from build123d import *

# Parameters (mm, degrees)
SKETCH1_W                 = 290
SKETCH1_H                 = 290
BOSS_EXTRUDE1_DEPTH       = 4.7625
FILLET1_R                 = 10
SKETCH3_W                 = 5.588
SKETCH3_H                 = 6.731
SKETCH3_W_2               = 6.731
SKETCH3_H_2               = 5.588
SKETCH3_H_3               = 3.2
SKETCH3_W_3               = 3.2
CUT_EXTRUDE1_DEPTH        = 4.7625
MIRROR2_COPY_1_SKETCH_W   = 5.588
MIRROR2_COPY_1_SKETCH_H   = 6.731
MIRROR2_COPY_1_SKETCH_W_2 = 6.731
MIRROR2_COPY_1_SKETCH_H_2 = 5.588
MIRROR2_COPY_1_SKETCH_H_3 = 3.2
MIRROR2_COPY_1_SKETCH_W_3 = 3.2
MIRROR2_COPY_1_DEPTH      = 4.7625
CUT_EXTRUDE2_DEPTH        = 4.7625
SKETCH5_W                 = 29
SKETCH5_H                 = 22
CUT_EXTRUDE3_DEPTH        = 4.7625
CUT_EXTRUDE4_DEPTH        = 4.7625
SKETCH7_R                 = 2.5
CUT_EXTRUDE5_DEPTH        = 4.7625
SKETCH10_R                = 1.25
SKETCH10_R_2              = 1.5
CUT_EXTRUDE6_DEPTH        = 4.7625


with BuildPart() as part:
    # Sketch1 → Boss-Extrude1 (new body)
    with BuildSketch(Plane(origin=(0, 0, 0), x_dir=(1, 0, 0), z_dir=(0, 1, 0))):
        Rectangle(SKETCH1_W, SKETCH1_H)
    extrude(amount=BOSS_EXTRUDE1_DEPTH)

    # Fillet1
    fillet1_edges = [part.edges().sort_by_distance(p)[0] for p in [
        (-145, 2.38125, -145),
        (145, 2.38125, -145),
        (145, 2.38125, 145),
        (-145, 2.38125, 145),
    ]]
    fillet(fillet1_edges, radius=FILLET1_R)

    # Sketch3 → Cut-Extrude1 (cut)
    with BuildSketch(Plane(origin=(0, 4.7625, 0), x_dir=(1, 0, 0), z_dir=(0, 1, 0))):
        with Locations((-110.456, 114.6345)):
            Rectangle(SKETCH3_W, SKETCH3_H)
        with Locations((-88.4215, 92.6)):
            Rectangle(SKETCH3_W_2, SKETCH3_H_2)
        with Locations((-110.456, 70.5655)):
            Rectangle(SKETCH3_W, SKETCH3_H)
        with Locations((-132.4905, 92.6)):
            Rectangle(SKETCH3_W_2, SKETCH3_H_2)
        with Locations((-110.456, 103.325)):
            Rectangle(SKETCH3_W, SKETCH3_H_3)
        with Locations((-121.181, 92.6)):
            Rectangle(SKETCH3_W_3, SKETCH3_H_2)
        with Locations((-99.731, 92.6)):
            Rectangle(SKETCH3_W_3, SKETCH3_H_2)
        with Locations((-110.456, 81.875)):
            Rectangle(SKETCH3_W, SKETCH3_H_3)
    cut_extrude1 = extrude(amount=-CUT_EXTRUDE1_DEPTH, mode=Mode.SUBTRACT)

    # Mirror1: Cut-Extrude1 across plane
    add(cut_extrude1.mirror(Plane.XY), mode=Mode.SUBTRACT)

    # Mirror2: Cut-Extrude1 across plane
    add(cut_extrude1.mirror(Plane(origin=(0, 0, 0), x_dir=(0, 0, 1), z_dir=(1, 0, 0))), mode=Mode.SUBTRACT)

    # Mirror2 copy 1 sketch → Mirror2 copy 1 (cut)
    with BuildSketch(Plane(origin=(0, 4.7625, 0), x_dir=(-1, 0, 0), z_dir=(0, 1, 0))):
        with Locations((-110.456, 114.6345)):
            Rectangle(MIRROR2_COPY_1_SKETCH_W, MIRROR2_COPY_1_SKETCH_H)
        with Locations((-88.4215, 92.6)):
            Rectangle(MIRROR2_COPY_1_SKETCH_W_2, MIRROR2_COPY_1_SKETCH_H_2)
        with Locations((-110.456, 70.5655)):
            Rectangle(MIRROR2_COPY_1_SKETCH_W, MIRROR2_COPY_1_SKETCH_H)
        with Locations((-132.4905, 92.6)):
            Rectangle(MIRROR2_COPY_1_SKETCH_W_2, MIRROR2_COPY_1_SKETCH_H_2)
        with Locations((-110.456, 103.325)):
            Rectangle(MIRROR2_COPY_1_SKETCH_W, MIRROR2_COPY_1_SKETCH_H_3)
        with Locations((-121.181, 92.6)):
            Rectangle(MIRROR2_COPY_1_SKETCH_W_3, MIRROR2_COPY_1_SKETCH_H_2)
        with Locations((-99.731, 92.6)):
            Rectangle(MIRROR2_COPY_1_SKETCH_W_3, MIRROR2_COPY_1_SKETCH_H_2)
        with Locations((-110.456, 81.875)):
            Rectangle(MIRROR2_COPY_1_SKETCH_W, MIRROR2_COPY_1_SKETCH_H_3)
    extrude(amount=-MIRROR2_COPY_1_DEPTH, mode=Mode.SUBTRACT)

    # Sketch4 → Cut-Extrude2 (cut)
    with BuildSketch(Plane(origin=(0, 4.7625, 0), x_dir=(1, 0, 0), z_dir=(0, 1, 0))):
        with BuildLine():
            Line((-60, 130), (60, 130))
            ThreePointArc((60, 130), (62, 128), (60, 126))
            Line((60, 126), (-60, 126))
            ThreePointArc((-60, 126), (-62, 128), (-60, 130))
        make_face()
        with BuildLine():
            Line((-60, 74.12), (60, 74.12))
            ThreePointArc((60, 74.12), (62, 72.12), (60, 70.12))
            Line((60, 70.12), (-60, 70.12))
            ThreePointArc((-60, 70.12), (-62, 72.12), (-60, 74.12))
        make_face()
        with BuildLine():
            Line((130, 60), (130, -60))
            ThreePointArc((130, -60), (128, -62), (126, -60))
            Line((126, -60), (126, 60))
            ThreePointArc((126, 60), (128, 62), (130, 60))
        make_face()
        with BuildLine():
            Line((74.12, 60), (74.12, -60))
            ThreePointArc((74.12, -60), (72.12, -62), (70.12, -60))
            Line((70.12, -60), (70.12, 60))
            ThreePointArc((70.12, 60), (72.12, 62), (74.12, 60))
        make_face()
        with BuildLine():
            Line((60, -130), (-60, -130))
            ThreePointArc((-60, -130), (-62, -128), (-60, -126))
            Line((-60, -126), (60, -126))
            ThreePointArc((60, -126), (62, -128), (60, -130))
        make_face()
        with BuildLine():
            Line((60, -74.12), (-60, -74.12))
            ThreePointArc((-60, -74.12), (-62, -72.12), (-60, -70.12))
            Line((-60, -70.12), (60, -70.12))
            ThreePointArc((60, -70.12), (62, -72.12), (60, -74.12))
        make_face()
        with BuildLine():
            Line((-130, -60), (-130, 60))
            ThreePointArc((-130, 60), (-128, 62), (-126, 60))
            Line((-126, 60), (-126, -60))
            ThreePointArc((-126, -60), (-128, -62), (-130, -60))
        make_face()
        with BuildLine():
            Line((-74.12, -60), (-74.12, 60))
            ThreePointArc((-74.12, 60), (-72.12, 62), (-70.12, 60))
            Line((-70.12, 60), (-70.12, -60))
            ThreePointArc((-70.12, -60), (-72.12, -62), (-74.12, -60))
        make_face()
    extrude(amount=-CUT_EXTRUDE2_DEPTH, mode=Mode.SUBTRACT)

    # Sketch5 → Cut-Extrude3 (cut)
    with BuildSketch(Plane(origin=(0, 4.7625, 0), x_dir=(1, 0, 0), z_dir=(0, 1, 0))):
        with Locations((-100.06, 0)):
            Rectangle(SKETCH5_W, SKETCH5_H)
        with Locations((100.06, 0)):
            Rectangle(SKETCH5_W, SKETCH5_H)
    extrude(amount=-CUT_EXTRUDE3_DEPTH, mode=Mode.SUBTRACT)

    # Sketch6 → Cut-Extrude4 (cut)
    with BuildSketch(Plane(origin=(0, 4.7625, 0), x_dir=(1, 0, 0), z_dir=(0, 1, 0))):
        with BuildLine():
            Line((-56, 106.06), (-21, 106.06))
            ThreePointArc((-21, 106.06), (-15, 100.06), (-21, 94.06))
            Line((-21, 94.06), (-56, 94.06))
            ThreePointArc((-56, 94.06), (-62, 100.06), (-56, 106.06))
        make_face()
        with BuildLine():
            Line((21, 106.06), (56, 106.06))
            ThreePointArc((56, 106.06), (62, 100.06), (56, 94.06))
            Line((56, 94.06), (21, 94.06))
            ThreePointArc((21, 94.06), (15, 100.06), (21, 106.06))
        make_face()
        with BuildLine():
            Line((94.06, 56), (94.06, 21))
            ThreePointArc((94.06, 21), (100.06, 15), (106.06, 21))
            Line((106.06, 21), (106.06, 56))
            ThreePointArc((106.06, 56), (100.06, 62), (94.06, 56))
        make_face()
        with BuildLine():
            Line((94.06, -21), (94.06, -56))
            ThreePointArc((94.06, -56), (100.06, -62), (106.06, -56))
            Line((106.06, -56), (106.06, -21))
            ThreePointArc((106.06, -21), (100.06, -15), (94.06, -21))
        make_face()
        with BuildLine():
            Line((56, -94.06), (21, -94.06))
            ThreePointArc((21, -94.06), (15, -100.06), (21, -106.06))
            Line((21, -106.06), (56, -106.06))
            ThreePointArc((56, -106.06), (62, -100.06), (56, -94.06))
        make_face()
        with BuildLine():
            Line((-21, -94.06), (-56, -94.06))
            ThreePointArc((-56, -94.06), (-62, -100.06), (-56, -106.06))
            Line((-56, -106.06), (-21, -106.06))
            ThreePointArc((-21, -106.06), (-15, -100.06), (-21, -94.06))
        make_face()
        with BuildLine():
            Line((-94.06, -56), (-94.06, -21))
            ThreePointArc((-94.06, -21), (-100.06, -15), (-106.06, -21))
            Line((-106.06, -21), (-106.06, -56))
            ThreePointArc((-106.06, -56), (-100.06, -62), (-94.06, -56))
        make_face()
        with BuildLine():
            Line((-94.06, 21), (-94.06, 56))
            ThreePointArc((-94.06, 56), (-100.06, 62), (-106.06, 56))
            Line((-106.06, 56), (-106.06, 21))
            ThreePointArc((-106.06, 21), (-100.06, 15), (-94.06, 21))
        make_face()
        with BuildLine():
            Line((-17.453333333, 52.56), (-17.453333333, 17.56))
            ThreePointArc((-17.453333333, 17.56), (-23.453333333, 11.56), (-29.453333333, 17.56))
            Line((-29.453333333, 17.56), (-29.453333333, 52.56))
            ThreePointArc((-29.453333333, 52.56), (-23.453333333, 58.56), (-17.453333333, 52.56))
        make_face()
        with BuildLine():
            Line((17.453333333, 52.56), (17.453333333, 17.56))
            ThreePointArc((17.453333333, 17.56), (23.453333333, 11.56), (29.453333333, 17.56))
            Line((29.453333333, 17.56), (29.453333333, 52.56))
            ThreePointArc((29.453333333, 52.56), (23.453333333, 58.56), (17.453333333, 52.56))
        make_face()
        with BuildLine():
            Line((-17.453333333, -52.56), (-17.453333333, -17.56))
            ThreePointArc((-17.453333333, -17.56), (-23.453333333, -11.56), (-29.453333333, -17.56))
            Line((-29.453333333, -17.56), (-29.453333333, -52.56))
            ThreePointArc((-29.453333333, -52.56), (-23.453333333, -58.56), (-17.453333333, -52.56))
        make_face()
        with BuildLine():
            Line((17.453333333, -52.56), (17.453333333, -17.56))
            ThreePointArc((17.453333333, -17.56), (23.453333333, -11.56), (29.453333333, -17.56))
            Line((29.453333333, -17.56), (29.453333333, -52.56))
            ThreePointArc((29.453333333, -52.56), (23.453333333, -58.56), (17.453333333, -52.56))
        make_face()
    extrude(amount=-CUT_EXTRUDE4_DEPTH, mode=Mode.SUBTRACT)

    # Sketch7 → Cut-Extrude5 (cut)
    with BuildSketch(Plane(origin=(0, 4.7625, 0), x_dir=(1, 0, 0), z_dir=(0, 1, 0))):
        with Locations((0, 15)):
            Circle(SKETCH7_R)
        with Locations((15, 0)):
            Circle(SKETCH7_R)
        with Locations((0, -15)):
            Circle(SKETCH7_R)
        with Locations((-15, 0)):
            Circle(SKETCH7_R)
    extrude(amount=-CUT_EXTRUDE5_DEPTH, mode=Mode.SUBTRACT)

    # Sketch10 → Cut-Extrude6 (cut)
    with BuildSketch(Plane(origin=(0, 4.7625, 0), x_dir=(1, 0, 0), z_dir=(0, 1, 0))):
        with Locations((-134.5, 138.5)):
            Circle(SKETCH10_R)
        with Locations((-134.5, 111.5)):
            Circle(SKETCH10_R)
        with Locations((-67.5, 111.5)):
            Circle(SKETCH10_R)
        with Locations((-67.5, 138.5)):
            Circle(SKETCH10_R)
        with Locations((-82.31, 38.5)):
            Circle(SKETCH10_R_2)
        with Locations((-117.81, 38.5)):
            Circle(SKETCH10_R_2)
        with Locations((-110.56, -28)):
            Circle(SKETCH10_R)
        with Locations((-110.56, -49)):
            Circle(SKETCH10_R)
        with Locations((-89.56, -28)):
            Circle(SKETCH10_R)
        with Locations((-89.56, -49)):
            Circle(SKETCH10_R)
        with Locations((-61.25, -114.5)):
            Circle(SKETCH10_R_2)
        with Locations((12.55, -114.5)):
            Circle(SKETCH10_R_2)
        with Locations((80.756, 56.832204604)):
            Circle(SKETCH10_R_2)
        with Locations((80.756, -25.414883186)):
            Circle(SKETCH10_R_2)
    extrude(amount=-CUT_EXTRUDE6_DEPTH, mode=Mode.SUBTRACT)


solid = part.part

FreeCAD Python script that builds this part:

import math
import FreeCAD as App
import Part
import Sketcher

V = App.Vector


def edges_at(feature, points):
    """Names of the edges that pass closest to the given points."""
    edges = feature.Shape.Edges
    near = lambda p: min(range(len(edges)), key=lambda i: edges[i].distToShape(Part.Vertex(*p))[0])
    return sorted({f"Edge{near(p) + 1}" for p in points})

doc = App.newDocument("Part")
body = doc.addObject("PartDesign::Body", "Body")

sketch1 = body.newObject("Sketcher::SketchObject", "Sketch")
sketch1.AttachmentSupport = (doc.getObject("XZ_Plane"), [""])
sketch1.MapMode = "FlatFace"
sketch1.addGeometry([
    Part.LineSegment(V(-145, -145, 0), V(-145, 145, 0)),
    Part.LineSegment(V(-145, 145, 0), V(145, 145, 0)),
    Part.LineSegment(V(145, 145, 0), V(145, -145, 0)),
    Part.LineSegment(V(145, -145, 0), V(-145, -145, 0)),
], False)
sketch1.addConstraint([
    Sketcher.Constraint("Coincident", 0, 2, 1, 1),
    Sketcher.Constraint("Coincident", 1, 2, 2, 1),
    Sketcher.Constraint("Coincident", 2, 2, 3, 1),
    Sketcher.Constraint("Coincident", 3, 2, 0, 1),
    Sketcher.Constraint("Vertical", 0),
    Sketcher.Constraint("Horizontal", 1),
    Sketcher.Constraint("Vertical", 2),
    Sketcher.Constraint("Horizontal", 3),
    Sketcher.Constraint("Symmetric", 0, 2, 2, 2, -1, 1),
    Sketcher.Constraint("Equal", 3, 0),
    Sketcher.Constraint("DistanceX", 1, 1, 1, 2, 290.0),
])
pad1 = body.newObject("PartDesign::Pad", "Pad")
pad1.Profile = sketch1
pad1.Length = 4.7625
pad1.Reversed = True
doc.recompute()

fillet = body.newObject("PartDesign::Fillet", "Fillet")
fillet.Base = (pad1, edges_at(pad1, [
    (-145, 2.381, -145),
    (145, 2.381, -145),
    (145, 2.381, 145),
    (-145, 2.381, 145),
]))
fillet.Radius = 10

sketch2 = body.newObject("Sketcher::SketchObject", "Sketch001")
sketch2.AttachmentSupport = (doc.getObject("XZ_Plane"), [""])
sketch2.MapMode = "FlatFace"
sketch2.AttachmentOffset = App.Placement(V(0, 0, -4.7625), App.Rotation())
sketch2.addGeometry([
    Part.LineSegment(V(-113.2, -118, 0), V(-113.2, -111.3, 0)),
    Part.LineSegment(V(-113.2, -111.3, 0), V(-107.7, -111.3, 0)),
    Part.LineSegment(V(-107.7, -111.3, 0), V(-107.7, -118, 0)),
    Part.LineSegment(V(-107.7, -118, 0), V(-113.2, -118, 0)),
    Part.LineSegment(V(-91.8, -95.4, 0), V(-91.8, -89.8, 0)),
    Part.LineSegment(V(-91.8, -89.8, 0), V(-85.1, -89.8, 0)),
    Part.LineSegment(V(-85.1, -89.8, 0), V(-85.1, -95.4, 0)),
    Part.LineSegment(V(-85.1, -95.4, 0), V(-91.8, -95.4, 0)),
    Part.LineSegment(V(-113.2, -73.9, 0), V(-113.2, -67.2, 0)),
    Part.LineSegment(V(-113.2, -67.2, 0), V(-107.7, -67.2, 0)),
    Part.LineSegment(V(-107.7, -67.2, 0), V(-107.7, -73.9, 0)),
    Part.LineSegment(V(-107.7, -73.9, 0), V(-113.2, -73.9, 0)),
    Part.LineSegment(V(-135.9, -95.4, 0), V(-135.9, -89.8, 0)),
    Part.LineSegment(V(-135.9, -89.8, 0), V(-129.1, -89.8, 0)),
    Part.LineSegment(V(-129.1, -89.8, 0), V(-129.1, -95.4, 0)),
    Part.LineSegment(V(-129.1, -95.4, 0), V(-135.9, -95.4, 0)),
    Part.LineSegment(V(-113.2, -104.9, 0), V(-113.2, -101.7, 0)),
    Part.LineSegment(V(-113.2, -101.7, 0), V(-107.7, -101.7, 0)),
    Part.LineSegment(V(-107.7, -101.7, 0), V(-107.7, -104.9, 0)),
    Part.LineSegment(V(-107.7, -104.9, 0), V(-113.2, -104.9, 0)),
    Part.LineSegment(V(-122.8, -95.4, 0), V(-122.8, -89.8, 0)),
    Part.LineSegment(V(-122.8, -89.8, 0), V(-119.6, -89.8, 0)),
    Part.LineSegment(V(-119.6, -89.8, 0), V(-119.6, -95.4, 0)),
    Part.LineSegment(V(-119.6, -95.4, 0), V(-122.8, -95.4, 0)),
    Part.LineSegment(V(-101.3, -95.4, 0), V(-101.3, -89.8, 0)),
    Part.LineSegment(V(-101.3, -89.8, 0), V(-98.1, -89.8, 0)),
    Part.LineSegment(V(-98.1, -89.8, 0), V(-98.1, -95.4, 0)),
    Part.LineSegment(V(-98.1, -95.4, 0), V(-101.3, -95.4, 0)),
    Part.LineSegment(V(-113.2, -83.5, 0), V(-113.2, -80.3, 0)),
    Part.LineSegment(V(-113.2, -80.3, 0), V(-107.7, -80.3, 0)),
    Part.LineSegment(V(-107.7, -80.3, 0), V(-107.7, -83.5, 0)),
    Part.LineSegment(V(-107.7, -83.5, 0), V(-113.2, -83.5, 0)),
], False)
sketch2.addConstraint([
    Sketcher.Constraint("Coincident", 0, 2, 1, 1),
    Sketcher.Constraint("Coincident", 1, 2, 2, 1),
    Sketcher.Constraint("Coincident", 2, 2, 3, 1),
    Sketcher.Constraint("Coincident", 3, 2, 0, 1),
    Sketcher.Constraint("Coincident", 4, 2, 5, 1),
    Sketcher.Constraint("Coincident", 5, 2, 6, 1),
    Sketcher.Constraint("Coincident", 6, 2, 7, 1),
    Sketcher.Constraint("Coincident", 7, 2, 4, 1),
    Sketcher.Constraint("Coincident", 8, 2, 9, 1),
    Sketcher.Constraint("Coincident", 9, 2, 10, 1),
    Sketcher.Constraint("Coincident", 10, 2, 11, 1),
    Sketcher.Constraint("Coincident", 11, 2, 8, 1),
    Sketcher.Constraint("Coincident", 12, 2, 13, 1),
    Sketcher.Constraint("Coincident", 13, 2, 14, 1),
    Sketcher.Constraint("Coincident", 14, 2, 15, 1),
    Sketcher.Constraint("Coincident", 15, 2, 12, 1),
    Sketcher.Constraint("Coincident", 16, 2, 17, 1),
    Sketcher.Constraint("Coincident", 17, 2, 18, 1),
    Sketcher.Constraint("Coincident", 18, 2, 19, 1),
    Sketcher.Constraint("Coincident", 19, 2, 16, 1),
    Sketcher.Constraint("Coincident", 20, 2, 21, 1),
    Sketcher.Constraint("Coincident", 21, 2, 22, 1),
    Sketcher.Constraint("Coincident", 22, 2, 23, 1),
    Sketcher.Constraint("Coincident", 23, 2, 20, 1),
    Sketcher.Constraint("Coincident", 24, 2, 25, 1),
    Sketcher.Constraint("Coincident", 25, 2, 26, 1),
    Sketcher.Constraint("Coincident", 26, 2, 27, 1),
    Sketcher.Constraint("Coincident", 27, 2, 24, 1),
    Sketcher.Constraint("Coincident", 28, 2, 29, 1),
    Sketcher.Constraint("Coincident", 29, 2, 30, 1),
    Sketcher.Constraint("Coincident", 30, 2, 31, 1),
    Sketcher.Constraint("Coincident", 31, 2, 28, 1),
    Sketcher.Constraint("Vertical", 0),
    Sketcher.Constraint("Horizontal", 1),
    Sketcher.Constraint("Vertical", 2),
    Sketcher.Constraint("Horizontal", 3),
    Sketcher.Constraint("Vertical", 4),
    Sketcher.Constraint("Horizontal", 5),
    Sketcher.Constraint("Vertical", 6),
    Sketcher.Constraint("Horizontal", 7),
    Sketcher.Constraint("Vertical", 8),
    Sketcher.Constraint("Horizontal", 9),
    Sketcher.Constraint("Vertical", 10),
    Sketcher.Constraint("Horizontal", 11),
    Sketcher.Constraint("Vertical", 12),
    Sketcher.Constraint("Horizontal", 13),
    Sketcher.Constraint("Vertical", 14),
    Sketcher.Constraint("Horizontal", 15),
    Sketcher.Constraint("Vertical", 16),
    Sketcher.Constraint("Horizontal", 17),
    Sketcher.Constraint("Vertical", 18),
    Sketcher.Constraint("Horizontal", 19),
    Sketcher.Constraint("Vertical", 20),
    Sketcher.Constraint("Horizontal", 21),
    Sketcher.Constraint("Vertical", 22),
    Sketcher.Constraint("Horizontal", 23),
    Sketcher.Constraint("Vertical", 24),
    Sketcher.Constraint("Horizontal", 25),
    Sketcher.Constraint("Vertical", 26),
    Sketcher.Constraint("Horizontal", 27),
    Sketcher.Constraint("Vertical", 28),
    Sketcher.Constraint("Horizontal", 29),
    Sketcher.Constraint("Vertical", 30),
    Sketcher.Constraint("Horizontal", 31),
    Sketcher.Constraint("Horizontal", 5, 2, 12, 2),
    Sketcher.Constraint("Horizontal", 7, 2, 14, 2),
    Sketcher.Constraint("Horizontal", 13, 2, 20, 2),
    Sketcher.Constraint("Horizontal", 15, 2, 22, 2),
    Sketcher.Constraint("Horizontal", 21, 2, 24, 2),
    Sketcher.Constraint("Horizontal", 23, 2, 26, 2),
    Sketcher.Constraint("Vertical", 3, 2, 8, 2),
    Sketcher.Constraint("Vertical", 2, 2, 9, 2),
    Sketcher.Constraint("Vertical", 11, 2, 16, 2),
    Sketcher.Constraint("Vertical", 10, 2, 17, 2),
    Sketcher.Constraint("Vertical", 19, 2, 28, 2),
    Sketcher.Constraint("Vertical", 18, 2, 29, 2),
    Sketcher.Constraint("Equal", 7, 13),
    Sketcher.Constraint("Equal", 23, 25),
    Sketcher.Constraint("Equal", 15, 0),
    Sketcher.Constraint("Equal", 31, 4),
    Sketcher.Constraint("Equal", 2, 8),
    Sketcher.Constraint("Equal", 27, 16),
    Sketcher.Constraint("Equal", 18, 28),
    Sketcher.Constraint("DistanceX", 21, 1, 21, 2, 3.2),
    Sketcher.Constraint("DistanceY", 2, 2, -1, 1, 118.0),
    Sketcher.Constraint("DistanceY", 8, 2, -1, 1, 67.2),
    Sketcher.Constraint("DistanceX", 1, 1, 1, 2, 5.588),
    Sketcher.Constraint("DistanceX", 5, 1, 5, 2, 6.731),
    Sketcher.Constraint("DistanceX", 0, 2, -1, 1, 113.25),
    Sketcher.Constraint("DistanceX", 4, 2, -1, 1, 91.787),
    Sketcher.Constraint("DistanceY", 4, 2, -1, 1, 89.806),
    Sketcher.Constraint("DistanceX", 12, 2, -1, 1, 135.856),
    Sketcher.Constraint("DistanceY", 16, 2, -1, 1, 101.725),
    Sketcher.Constraint("DistanceX", 20, 2, -1, 1, 122.781),
    Sketcher.Constraint("DistanceX", 24, 2, -1, 1, 101.331),
    Sketcher.Constraint("DistanceY", 28, 2, -1, 1, 80.275),
])
pocket1 = body.newObject("PartDesign::Pocket", "Pocket")
pocket1.Profile = sketch2
pocket1.Length = 4.7625
pocket1.Reversed = True
doc.recompute()

mirrored = body.newObject("PartDesign::Mirrored", "Mirrored")
mirrored.Originals = [pocket1]
mirrored.MirrorPlane = (doc.getObject("XY_Plane"), [""])
body.Tip = mirrored
doc.recompute()

mirrored2 = body.newObject("PartDesign::Mirrored", "Mirrored001")
mirrored2.Originals = [pocket1]
mirrored2.MirrorPlane = (doc.getObject("YZ_Plane"), [""])
body.Tip = mirrored2

sketch3 = body.newObject("Sketcher::SketchObject", "Sketch002")
sketch3.AttachmentSupport = (doc.getObject("XZ_Plane"), [""])
sketch3.MapMode = "FlatFace"
sketch3.AttachmentOffset = App.Placement(V(0, 0, -4.7625), App.Rotation())
sketch3.addGeometry([
    Part.LineSegment(V(113.2, 118, 0), V(113.2, 111.3, 0)),
    Part.LineSegment(V(113.2, 111.3, 0), V(107.7, 111.3, 0)),
    Part.LineSegment(V(107.7, 111.3, 0), V(107.7, 118, 0)),
    Part.LineSegment(V(107.7, 118, 0), V(113.2, 118, 0)),
    Part.LineSegment(V(91.8, 95.4, 0), V(91.8, 89.8, 0)),
    Part.LineSegment(V(91.8, 89.8, 0), V(85.1, 89.8, 0)),
    Part.LineSegment(V(85.1, 89.8, 0), V(85.1, 95.4, 0)),
    Part.LineSegment(V(85.1, 95.4, 0), V(91.8, 95.4, 0)),
    Part.LineSegment(V(113.2, 73.9, 0), V(113.2, 67.2, 0)),
    Part.LineSegment(V(113.2, 67.2, 0), V(107.7, 67.2, 0)),
    Part.LineSegment(V(107.7, 67.2, 0), V(107.7, 73.9, 0)),
    Part.LineSegment(V(107.7, 73.9, 0), V(113.2, 73.9, 0)),
    Part.LineSegment(V(135.9, 95.4, 0), V(135.9, 89.8, 0)),
    Part.LineSegment(V(135.9, 89.8, 0), V(129.1, 89.8, 0)),
    Part.LineSegment(V(129.1, 89.8, 0), V(129.1, 95.4, 0)),
    Part.LineSegment(V(129.1, 95.4, 0), V(135.9, 95.4, 0)),
    Part.LineSegment(V(113.2, 104.9, 0), V(113.2, 101.7, 0)),
    Part.LineSegment(V(113.2, 101.7, 0), V(107.7, 101.7, 0)),
    Part.LineSegment(V(107.7, 101.7, 0), V(107.7, 104.9, 0)),
    Part.LineSegment(V(107.7, 104.9, 0), V(113.2, 104.9, 0)),
    Part.LineSegment(V(122.8, 95.4, 0), V(122.8, 89.8, 0)),
    Part.LineSegment(V(122.8, 89.8, 0), V(119.6, 89.8, 0)),
    Part.LineSegment(V(119.6, 89.8, 0), V(119.6, 95.4, 0)),
    Part.LineSegment(V(119.6, 95.4, 0), V(122.8, 95.4, 0)),
    Part.LineSegment(V(101.3, 95.4, 0), V(101.3, 89.8, 0)),
    Part.LineSegment(V(101.3, 89.8, 0), V(98.1, 89.8, 0)),
    Part.LineSegment(V(98.1, 89.8, 0), V(98.1, 95.4, 0)),
    Part.LineSegment(V(98.1, 95.4, 0), V(101.3, 95.4, 0)),
    Part.LineSegment(V(113.2, 83.5, 0), V(113.2, 80.3, 0)),
    Part.LineSegment(V(113.2, 80.3, 0), V(107.7, 80.3, 0)),
    Part.LineSegment(V(107.7, 80.3, 0), V(107.7, 83.5, 0)),
    Part.LineSegment(V(107.7, 83.5, 0), V(113.2, 83.5, 0)),
], False)
sketch3.addConstraint([
    Sketcher.Constraint("Coincident", 0, 2, 1, 1),
    Sketcher.Constraint("Coincident", 1, 2, 2, 1),
    Sketcher.Constraint("Coincident", 2, 2, 3, 1),
    Sketcher.Constraint("Coincident", 3, 2, 0, 1),
    Sketcher.Constraint("Coincident", 4, 2, 5, 1),
    Sketcher.Constraint("Coincident", 5, 2, 6, 1),
    Sketcher.Constraint("Coincident", 6, 2, 7, 1),
    Sketcher.Constraint("Coincident", 7, 2, 4, 1),
    Sketcher.Constraint("Coincident", 8, 2, 9, 1),
    Sketcher.Constraint("Coincident", 9, 2, 10, 1),
    Sketcher.Constraint("Coincident", 10, 2, 11, 1),
    Sketcher.Constraint("Coincident", 11, 2, 8, 1),
    Sketcher.Constraint("Coincident", 12, 2, 13, 1),
    Sketcher.Constraint("Coincident", 13, 2, 14, 1),
    Sketcher.Constraint("Coincident", 14, 2, 15, 1),
    Sketcher.Constraint("Coincident", 15, 2, 12, 1),
    Sketcher.Constraint("Coincident", 16, 2, 17, 1),
    Sketcher.Constraint("Coincident", 17, 2, 18, 1),
    Sketcher.Constraint("Coincident", 18, 2, 19, 1),
    Sketcher.Constraint("Coincident", 19, 2, 16, 1),
    Sketcher.Constraint("Coincident", 20, 2, 21, 1),
    Sketcher.Constraint("Coincident", 21, 2, 22, 1),
    Sketcher.Constraint("Coincident", 22, 2, 23, 1),
    Sketcher.Constraint("Coincident", 23, 2, 20, 1),
    Sketcher.Constraint("Coincident", 24, 2, 25, 1),
    Sketcher.Constraint("Coincident", 25, 2, 26, 1),
    Sketcher.Constraint("Coincident", 26, 2, 27, 1),
    Sketcher.Constraint("Coincident", 27, 2, 24, 1),
    Sketcher.Constraint("Coincident", 28, 2, 29, 1),
    Sketcher.Constraint("Coincident", 29, 2, 30, 1),
    Sketcher.Constraint("Coincident", 30, 2, 31, 1),
    Sketcher.Constraint("Coincident", 31, 2, 28, 1),
    Sketcher.Constraint("Vertical", 0),
    Sketcher.Constraint("Horizontal", 1),
    Sketcher.Constraint("Vertical", 2),
    Sketcher.Constraint("Horizontal", 3),
    Sketcher.Constraint("Vertical", 4),
    Sketcher.Constraint("Horizontal", 5),
    Sketcher.Constraint("Vertical", 6),
    Sketcher.Constraint("Horizontal", 7),
    Sketcher.Constraint("Vertical", 8),
    Sketcher.Constraint("Horizontal", 9),
    Sketcher.Constraint("Vertical", 10),
    Sketcher.Constraint("Horizontal", 11),
    Sketcher.Constraint("Vertical", 12),
    Sketcher.Constraint("Horizontal", 13),
    Sketcher.Constraint("Vertical", 14),
    Sketcher.Constraint("Horizontal", 15),
    Sketcher.Constraint("Vertical", 16),
    Sketcher.Constraint("Horizontal", 17),
    Sketcher.Constraint("Vertical", 18),
    Sketcher.Constraint("Horizontal", 19),
    Sketcher.Constraint("Vertical", 20),
    Sketcher.Constraint("Horizontal", 21),
    Sketcher.Constraint("Vertical", 22),
    Sketcher.Constraint("Horizontal", 23),
    Sketcher.Constraint("Vertical", 24),
    Sketcher.Constraint("Horizontal", 25),
    Sketcher.Constraint("Vertical", 26),
    Sketcher.Constraint("Horizontal", 27),
    Sketcher.Constraint("Vertical", 28),
    Sketcher.Constraint("Horizontal", 29),
    Sketcher.Constraint("Vertical", 30),
    Sketcher.Constraint("Horizontal", 31),
    Sketcher.Constraint("Horizontal", 5, 2, 12, 2),
    Sketcher.Constraint("Horizontal", 7, 2, 14, 2),
    Sketcher.Constraint("Horizontal", 13, 2, 20, 2),
    Sketcher.Constraint("Horizontal", 15, 2, 22, 2),
    Sketcher.Constraint("Horizontal", 21, 2, 24, 2),
    Sketcher.Constraint("Horizontal", 23, 2, 26, 2),
    Sketcher.Constraint("Vertical", 3, 2, 8, 2),
    Sketcher.Constraint("Vertical", 2, 2, 9, 2),
    Sketcher.Constraint("Vertical", 11, 2, 16, 2),
    Sketcher.Constraint("Vertical", 10, 2, 17, 2),
    Sketcher.Constraint("Vertical", 19, 2, 28, 2),
    Sketcher.Constraint("Vertical", 18, 2, 29, 2),
    Sketcher.Constraint("Equal", 7, 13),
    Sketcher.Constraint("Equal", 23, 25),
    Sketcher.Constraint("Equal", 15, 0),
    Sketcher.Constraint("Equal", 31, 4),
    Sketcher.Constraint("Equal", 2, 8),
    Sketcher.Constraint("Equal", 27, 16),
    Sketcher.Constraint("Equal", 18, 28),
    Sketcher.Constraint("DistanceX", 21, 2, 21, 1, 3.2),
    Sketcher.Constraint("DistanceY", -1, 1, 2, 2, 118.0),
    Sketcher.Constraint("DistanceY", -1, 1, 8, 2, 67.2),
    Sketcher.Constraint("DistanceX", 1, 2, 1, 1, 5.588),
    Sketcher.Constraint("DistanceX", 5, 2, 5, 1, 6.731),
    Sketcher.Constraint("DistanceX", -1, 1, 0, 2, 113.25),
    Sketcher.Constraint("DistanceX", -1, 1, 4, 2, 91.787),
    Sketcher.Constraint("DistanceY", -1, 1, 4, 2, 89.806),
    Sketcher.Constraint("DistanceX", -1, 1, 12, 2, 135.856),
    Sketcher.Constraint("DistanceY", -1, 1, 16, 2, 101.725),
    Sketcher.Constraint("DistanceX", -1, 1, 20, 2, 122.781),
    Sketcher.Constraint("DistanceX", -1, 1, 24, 2, 101.331),
    Sketcher.Constraint("DistanceY", -1, 1, 28, 2, 80.275),
])
pocket2 = body.newObject("PartDesign::Pocket", "Pocket001")
pocket2.Profile = sketch3
pocket2.Length = 4.7625
pocket2.Reversed = True

sketch4 = body.newObject("Sketcher::SketchObject", "Sketch003")
sketch4.AttachmentSupport = (doc.getObject("XZ_Plane"), [""])
sketch4.MapMode = "FlatFace"
sketch4.AttachmentOffset = App.Placement(V(0, 0, -4.7625), App.Rotation())
sketch4.addGeometry([
    Part.LineSegment(V(60, -130, 0), V(-60, -130, 0)),
    Part.ArcOfCircle(Part.Circle(V(-60, -128, 0), V(0, 0, 1), 2), math.radians(90), math.radians(270)),
    Part.LineSegment(V(-60, -126, 0), V(60, -126, 0)),
    Part.ArcOfCircle(Part.Circle(V(60, -128, 0), V(0, 0, 1), 2), math.radians(-90), math.radians(90)),
    Part.LineSegment(V(60, -74.1, 0), V(-60, -74.1, 0)),
    Part.ArcOfCircle(Part.Circle(V(-60, -72.1, 0), V(0, 0, 1), 2), math.radians(90), math.radians(270)),
    Part.LineSegment(V(-60, -70.1, 0), V(60, -70.1, 0)),
    Part.ArcOfCircle(Part.Circle(V(60, -72.1, 0), V(0, 0, 1), 2), math.radians(-90), math.radians(90)),
    Part.LineSegment(V(130, 60, 0), V(130, -60, 0)),
    Part.ArcOfCircle(Part.Circle(V(128, -60, 0), V(0, 0, 1), 2), math.radians(180), math.radians(360)),
    Part.LineSegment(V(126, -60, 0), V(126, 60, 0)),
    Part.ArcOfCircle(Part.Circle(V(128, 60, 0), V(0, 0, 1), 2), math.radians(0), math.radians(180)),
    Part.LineSegment(V(74.1, 60, 0), V(74.1, -60, 0)),
    Part.ArcOfCircle(Part.Circle(V(72.1, -60, 0), V(0, 0, 1), 2), math.radians(180), math.radians(360)),
    Part.LineSegment(V(70.1, -60, 0), V(70.1, 60, 0)),
    Part.ArcOfCircle(Part.Circle(V(72.1, 60, 0), V(0, 0, 1), 2), math.radians(0), math.radians(180)),
    Part.LineSegment(V(-60, 130, 0), V(60, 130, 0)),
    Part.ArcOfCircle(Part.Circle(V(60, 128, 0), V(0, 0, 1), 2), math.radians(-90), math.radians(90)),
    Part.LineSegment(V(60, 126, 0), V(-60, 126, 0)),
    Part.ArcOfCircle(Part.Circle(V(-60, 128, 0), V(0, 0, 1), 2), math.radians(90), math.radians(270)),
    Part.LineSegment(V(-60, 74.1, 0), V(60, 74.1, 0)),
    Part.ArcOfCircle(Part.Circle(V(60, 72.1, 0), V(0, 0, 1), 2), math.radians(-90), math.radians(90)),
    Part.LineSegment(V(60, 70.1, 0), V(-60, 70.1, 0)),
    Part.ArcOfCircle(Part.Circle(V(-60, 72.1, 0), V(0, 0, 1), 2), math.radians(90), math.radians(270)),
    Part.LineSegment(V(-130, -60, 0), V(-130, 60, 0)),
    Part.ArcOfCircle(Part.Circle(V(-128, 60, 0), V(0, 0, 1), 2), math.radians(0), math.radians(180)),
    Part.LineSegment(V(-126, 60, 0), V(-126, -60, 0)),
    Part.ArcOfCircle(Part.Circle(V(-128, -60, 0), V(0, 0, 1), 2), math.radians(180), math.radians(360)),
    Part.LineSegment(V(-74.1, -60, 0), V(-74.1, 60, 0)),
    Part.ArcOfCircle(Part.Circle(V(-72.1, 60, 0), V(0, 0, 1), 2), math.radians(0), math.radians(180)),
    Part.LineSegment(V(-70.1, 60, 0), V(-70.1, -60, 0)),
    Part.ArcOfCircle(Part.Circle(V(-72.1, -60, 0), V(0, 0, 1), 2), math.radians(180), math.radians(360)),
], False)
sketch4.addConstraint([
    Sketcher.Constraint("Tangent", 0, 2, 1, 2),
    Sketcher.Constraint("Tangent", 1, 1, 2, 1),
    Sketcher.Constraint("Tangent", 2, 2, 3, 2),
    Sketcher.Constraint("Tangent", 3, 1, 0, 1),
    Sketcher.Constraint("Tangent", 4, 2, 5, 2),
    Sketcher.Constraint("Tangent", 5, 1, 6, 1),
    Sketcher.Constraint("Tangent", 6, 2, 7, 2),
    Sketcher.Constraint("Tangent", 7, 1, 4, 1),
    Sketcher.Constraint("Tangent", 8, 2, 9, 2),
    Sketcher.Constraint("Tangent", 9, 1, 10, 1),
    Sketcher.Constraint("Tangent", 10, 2, 11, 2),
    Sketcher.Constraint("Tangent", 11, 1, 8, 1),
    Sketcher.Constraint("Tangent", 12, 2, 13, 2),
    Sketcher.Constraint("Tangent", 13, 1, 14, 1),
    Sketcher.Constraint("Tangent", 14, 2, 15, 2),
    Sketcher.Constraint("Tangent", 15, 1, 12, 1),
    Sketcher.Constraint("Tangent", 16, 2, 17, 2),
    Sketcher.Constraint("Tangent", 17, 1, 18, 1),
    Sketcher.Constraint("Tangent", 18, 2, 19, 2),
    Sketcher.Constraint("Tangent", 19, 1, 16, 1),
    Sketcher.Constraint("Tangent", 20, 2, 21, 2),
    Sketcher.Constraint("Tangent", 21, 1, 22, 1),
    Sketcher.Constraint("Tangent", 22, 2, 23, 2),
    Sketcher.Constraint("Tangent", 23, 1, 20, 1),
    Sketcher.Constraint("Tangent", 24, 2, 25, 2),
    Sketcher.Constraint("Tangent", 25, 1, 26, 1),
    Sketcher.Constraint("Tangent", 26, 2, 27, 2),
    Sketcher.Constraint("Tangent", 27, 1, 24, 1),
    Sketcher.Constraint("Tangent", 28, 2, 29, 2),
    Sketcher.Constraint("Tangent", 29, 1, 30, 1),
    Sketcher.Constraint("Tangent", 30, 2, 31, 2),
    Sketcher.Constraint("Tangent", 31, 1, 28, 1),
    Sketcher.Constraint("Horizontal", 0),
    Sketcher.Constraint("Horizontal", 2),
    Sketcher.Constraint("Horizontal", 4),
    Sketcher.Constraint("Horizontal", 6),
    Sketcher.Constraint("Vertical", 8),
    Sketcher.Constraint("Vertical", 10),
    Sketcher.Constraint("Vertical", 12),
    Sketcher.Constraint("Vertical", 14),
    Sketcher.Constraint("Horizontal", 16),
    Sketcher.Constraint("Horizontal", 18),
    Sketcher.Constraint("Horizontal", 20),
    Sketcher.Constraint("Horizontal", 22),
    Sketcher.Constraint("Vertical", 24),
    Sketcher.Constraint("Vertical", 26),
    Sketcher.Constraint("Vertical", 28),
    Sketcher.Constraint("Vertical", 30),
    Sketcher.Constraint("Equal", 3, 5),
    Sketcher.Constraint("Equal", 7, 9),
    Sketcher.Constraint("Equal", 11, 13),
    Sketcher.Constraint("Equal", 15, 17),
    Sketcher.Constraint("Equal", 19, 21),
    Sketcher.Constraint("Equal", 23, 25),
    Sketcher.Constraint("Equal", 27, 29),
    Sketcher.Constraint("Symmetric", 1, 3, 17, 3, -1, 1),
    Sketcher.Constraint("Symmetric", 5, 3, 21, 3, -1, 1),
    Sketcher.Constraint("Symmetric", 9, 3, 25, 3, -1, 1),
    Sketcher.Constraint("Symmetric", 13, 3, 29, 3, -1, 1),
    Sketcher.Constraint("Horizontal", 9, 3, 13, 3),
    Sketcher.Constraint("Horizontal", 11, 3, 15, 3),
    Sketcher.Constraint("Horizontal", 15, 3, 25, 3),
    Sketcher.Constraint("Horizontal", 13, 3, 27, 3),
    Sketcher.Constraint("Horizontal", 27, 3, 31, 3),
    Sketcher.Constraint("Vertical", 1, 3, 5, 3),
    Sketcher.Constraint("Vertical", 3, 3, 7, 3),
    Sketcher.Constraint("Vertical", 7, 3, 17, 3),
    Sketcher.Constraint("Vertical", 5, 3, 19, 3),
    Sketcher.Constraint("Vertical", 19, 3, 23, 3),
    Sketcher.Constraint("Equal", 22, 8),
    Sketcher.Constraint("Radius", 1, 2.0),
    Sketcher.Constraint("DistanceX", 0, 2, 0, 1, 120.0),
    Sketcher.Constraint("DistanceY", 1, 3, -1, 1, 128.0),
    Sketcher.Constraint("DistanceX", -1, 1, 9, 3, 128.0),
    Sketcher.Constraint("DistanceY", 5, 3, -1, 1, 72.12),
    Sketcher.Constraint("DistanceX", -1, 1, 13, 3, 72.12),
])
pocket3 = body.newObject("PartDesign::Pocket", "Pocket002")
pocket3.Profile = sketch4
pocket3.Length = 4.7625
pocket3.Reversed = True

sketch5 = body.newObject("Sketcher::SketchObject", "Sketch004")
sketch5.AttachmentSupport = (doc.getObject("XZ_Plane"), [""])
sketch5.MapMode = "FlatFace"
sketch5.AttachmentOffset = App.Placement(V(0, 0, -4.7625), App.Rotation())
sketch5.addGeometry([
    Part.LineSegment(V(-115, -11, 0), V(-115, 11, 0)),
    Part.LineSegment(V(-115, 11, 0), V(-86, 11, 0)),
    Part.LineSegment(V(-86, 11, 0), V(-86, -11, 0)),
    Part.LineSegment(V(-86, -11, 0), V(-115, -11, 0)),
    Part.LineSegment(V(86, -11, 0), V(86, 11, 0)),
    Part.LineSegment(V(86, 11, 0), V(115, 11, 0)),
    Part.LineSegment(V(115, 11, 0), V(115, -11, 0)),
    Part.LineSegment(V(115, -11, 0), V(86, -11, 0)),
], False)
sketch5.addConstraint([
    Sketcher.Constraint("Coincident", 0, 2, 1, 1),
    Sketcher.Constraint("Coincident", 1, 2, 2, 1),
    Sketcher.Constraint("Coincident", 2, 2, 3, 1),
    Sketcher.Constraint("Coincident", 3, 2, 0, 1),
    Sketcher.Constraint("Coincident", 4, 2, 5, 1),
    Sketcher.Constraint("Coincident", 5, 2, 6, 1),
    Sketcher.Constraint("Coincident", 6, 2, 7, 1),
    Sketcher.Constraint("Coincident", 7, 2, 4, 1),
    Sketcher.Constraint("Vertical", 0),
    Sketcher.Constraint("Horizontal", 1),
    Sketcher.Constraint("Vertical", 2),
    Sketcher.Constraint("Horizontal", 3),
    Sketcher.Constraint("Vertical", 4),
    Sketcher.Constraint("Horizontal", 5),
    Sketcher.Constraint("Vertical", 6),
    Sketcher.Constraint("Horizontal", 7),
    Sketcher.Constraint("Symmetric", 2, 2, 4, 2, -1, 1),
    Sketcher.Constraint("Symmetric", 0, 2, 6, 2, -1, 1),
    Sketcher.Constraint("Horizontal", 1, 2, 4, 2),
    Sketcher.Constraint("DistanceX", 1, 1, 1, 2, 29.0),
    Sketcher.Constraint("DistanceY", 0, 1, 0, 2, 22.0),
    Sketcher.Constraint("DistanceX", 0, 2, -1, 1, 114.56),
])
pocket4 = body.newObject("PartDesign::Pocket", "Pocket003")
pocket4.Profile = sketch5
pocket4.Length = 4.7625
pocket4.Reversed = True

sketch6 = body.newObject("Sketcher::SketchObject", "Sketch005")
sketch6.AttachmentSupport = (doc.getObject("XZ_Plane"), [""])
sketch6.MapMode = "FlatFace"
sketch6.AttachmentOffset = App.Placement(V(0, 0, -4.7625), App.Rotation())
sketch6.addGeometry([
    Part.LineSegment(V(-21, -106, 0), V(-56, -106, 0)),
    Part.ArcOfCircle(Part.Circle(V(-56, -100, 0), V(0, 0, 1), 6), math.radians(90), math.radians(270)),
    Part.LineSegment(V(-56, -94, 0), V(-21, -94, 0)),
    Part.ArcOfCircle(Part.Circle(V(-21, -100, 0), V(0, 0, 1), 6), math.radians(-90), math.radians(90)),
    Part.LineSegment(V(56, -106, 0), V(21, -106, 0)),
    Part.ArcOfCircle(Part.Circle(V(21, -100, 0), V(0, 0, 1), 6), math.radians(90), math.radians(270)),
    Part.LineSegment(V(21, -94, 0), V(56, -94, 0)),
    Part.ArcOfCircle(Part.Circle(V(56, -100, 0), V(0, 0, 1), 6), math.radians(-90), math.radians(90)),
    Part.LineSegment(V(94, -56, 0), V(94, -21, 0)),
    Part.ArcOfCircle(Part.Circle(V(100, -21, 0), V(0, 0, 1), 6), math.radians(0), math.radians(180)),
    Part.LineSegment(V(106, -21, 0), V(106, -56, 0)),
    Part.ArcOfCircle(Part.Circle(V(100, -56, 0), V(0, 0, 1), 6), math.radians(180), math.radians(360)),
    Part.LineSegment(V(94, 21, 0), V(94, 56, 0)),
    Part.ArcOfCircle(Part.Circle(V(100, 56, 0), V(0, 0, 1), 6), math.radians(0), math.radians(180)),
    Part.LineSegment(V(106, 56, 0), V(106, 21, 0)),
    Part.ArcOfCircle(Part.Circle(V(100, 21, 0), V(0, 0, 1), 6), math.radians(180), math.radians(360)),
    Part.LineSegment(V(56, 94, 0), V(21, 94, 0)),
    Part.ArcOfCircle(Part.Circle(V(21, 100, 0), V(0, 0, 1), 6), math.radians(90), math.radians(270)),
    Part.LineSegment(V(21, 106, 0), V(56, 106, 0)),
    Part.ArcOfCircle(Part.Circle(V(56, 100, 0), V(0, 0, 1), 6), math.radians(-90), math.radians(90)),
    Part.LineSegment(V(-21, 94, 0), V(-56, 94, 0)),
    Part.ArcOfCircle(Part.Circle(V(-56, 100, 0), V(0, 0, 1), 6), math.radians(90), math.radians(270)),
    Part.LineSegment(V(-56, 106, 0), V(-21, 106, 0)),
    Part.ArcOfCircle(Part.Circle(V(-21, 100, 0), V(0, 0, 1), 6), math.radians(-90), math.radians(90)),
    Part.LineSegment(V(-94, 56, 0), V(-94, 21, 0)),
    Part.ArcOfCircle(Part.Circle(V(-100, 21, 0), V(0, 0, 1), 6), math.radians(180), math.radians(360)),
    Part.LineSegment(V(-106, 21, 0), V(-106, 56, 0)),
    Part.ArcOfCircle(Part.Circle(V(-100, 56, 0), V(0, 0, 1), 6), math.radians(0), math.radians(180)),
    Part.LineSegment(V(-94, -21, 0), V(-94, -56, 0)),
    Part.ArcOfCircle(Part.Circle(V(-100, -56, 0), V(0, 0, 1), 6), math.radians(180), math.radians(360)),
    Part.LineSegment(V(-106, -56, 0), V(-106, -21, 0)),
    Part.ArcOfCircle(Part.Circle(V(-100, -21, 0), V(0, 0, 1), 6), math.radians(0), math.radians(180)),
    Part.LineSegment(V(-17, -18, 0), V(-17, -53, 0)),
    Part.ArcOfCircle(Part.Circle(V(-23, -53, 0), V(0, 0, 1), 6), math.radians(180), math.radians(360)),
    Part.LineSegment(V(-29, -53, 0), V(-29, -18, 0)),
    Part.ArcOfCircle(Part.Circle(V(-23, -18, 0), V(0, 0, 1), 6), math.radians(0), math.radians(180)),
    Part.LineSegment(V(17, -53, 0), V(17, -18, 0)),
    Part.ArcOfCircle(Part.Circle(V(23, -18, 0), V(0, 0, 1), 6), math.radians(0), math.radians(180)),
    Part.LineSegment(V(29, -18, 0), V(29, -53, 0)),
    Part.ArcOfCircle(Part.Circle(V(23, -53, 0), V(0, 0, 1), 6), math.radians(180), math.radians(360)),
    Part.LineSegment(V(-17, 53, 0), V(-17, 18, 0)),
    Part.ArcOfCircle(Part.Circle(V(-23, 18, 0), V(0, 0, 1), 6), math.radians(180), math.radians(360)),
    Part.LineSegment(V(-29, 18, 0), V(-29, 53, 0)),
    Part.ArcOfCircle(Part.Circle(V(-23, 53, 0), V(0, 0, 1), 6), math.radians(0), math.radians(180)),
    Part.LineSegment(V(17, 18, 0), V(17, 53, 0)),
    Part.ArcOfCircle(Part.Circle(V(23, 53, 0), V(0, 0, 1), 6), math.radians(0), math.radians(180)),
    Part.LineSegment(V(29, 53, 0), V(29, 18, 0)),
    Part.ArcOfCircle(Part.Circle(V(23, 18, 0), V(0, 0, 1), 6), math.radians(180), math.radians(360)),
], False)
sketch6.addConstraint([
    Sketcher.Constraint("Tangent", 0, 2, 1, 2),
    Sketcher.Constraint("Tangent", 1, 1, 2, 1),
    Sketcher.Constraint("Tangent", 2, 2, 3, 2),
    Sketcher.Constraint("Tangent", 3, 1, 0, 1),
    Sketcher.Constraint("Tangent", 4, 2, 5, 2),
    Sketcher.Constraint("Tangent", 5, 1, 6, 1),
    Sketcher.Constraint("Tangent", 6, 2, 7, 2),
    Sketcher.Constraint("Tangent", 7, 1, 4, 1),
    Sketcher.Constraint("Tangent", 8, 2, 9, 2),
    Sketcher.Constraint("Tangent", 9, 1, 10, 1),
    Sketcher.Constraint("Tangent", 10, 2, 11, 2),
    Sketcher.Constraint("Tangent", 11, 1, 8, 1),
    Sketcher.Constraint("Tangent", 12, 2, 13, 2),
    Sketcher.Constraint("Tangent", 13, 1, 14, 1),
    Sketcher.Constraint("Tangent", 14, 2, 15, 2),
    Sketcher.Constraint("Tangent", 15, 1, 12, 1),
    Sketcher.Constraint("Tangent", 16, 2, 17, 2),
    Sketcher.Constraint("Tangent", 17, 1, 18, 1),
    Sketcher.Constraint("Tangent", 18, 2, 19, 2),
    Sketcher.Constraint("Tangent", 19, 1, 16, 1),
    Sketcher.Constraint("Tangent", 20, 2, 21, 2),
    Sketcher.Constraint("Tangent", 21, 1, 22, 1),
    Sketcher.Constraint("Tangent", 22, 2, 23, 2),
    Sketcher.Constraint("Tangent", 23, 1, 20, 1),
    Sketcher.Constraint("Tangent", 24, 2, 25, 2),
    Sketcher.Constraint("Tangent", 25, 1, 26, 1),
    Sketcher.Constraint("Tangent", 26, 2, 27, 2),
    Sketcher.Constraint("Tangent", 27, 1, 24, 1),
    Sketcher.Constraint("Tangent", 28, 2, 29, 2),
    Sketcher.Constraint("Tangent", 29, 1, 30, 1),
    Sketcher.Constraint("Tangent", 30, 2, 31, 2),
    Sketcher.Constraint("Tangent", 31, 1, 28, 1),
    Sketcher.Constraint("Tangent", 32, 2, 33, 2),
    Sketcher.Constraint("Tangent", 33, 1, 34, 1),
    Sketcher.Constraint("Tangent", 34, 2, 35, 2),
    Sketcher.Constraint("Tangent", 35, 1, 32, 1),
    Sketcher.Constraint("Tangent", 36, 2, 37, 2),
    Sketcher.Constraint("Tangent", 37, 1, 38, 1),
    Sketcher.Constraint("Tangent", 38, 2, 39, 2),
    Sketcher.Constraint("Tangent", 39, 1, 36, 1),
    Sketcher.Constraint("Tangent", 40, 2, 41, 2),
    Sketcher.Constraint("Tangent", 41, 1, 42, 1),
    Sketcher.Constraint("Tangent", 42, 2, 43, 2),
    Sketcher.Constraint("Tangent", 43, 1, 40, 1),
    Sketcher.Constraint("Tangent", 44, 2, 45, 2),
    Sketcher.Constraint("Tangent", 45, 1, 46, 1),
    Sketcher.Constraint("Tangent", 46, 2, 47, 2),
    Sketcher.Constraint("Tangent", 47, 1, 44, 1),
    Sketcher.Constraint("Horizontal", 0),
    Sketcher.Constraint("Horizontal", 2),
    Sketcher.Constraint("Horizontal", 4),
    Sketcher.Constraint("Horizontal", 6),
    Sketcher.Constraint("Vertical", 8),
    Sketcher.Constraint("Vertical", 10),
    Sketcher.Constraint("Vertical", 12),
    Sketcher.Constraint("Vertical", 14),
    Sketcher.Constraint("Horizontal", 16),
    Sketcher.Constraint("Horizontal", 18),
    Sketcher.Constraint("Horizontal", 20),
    Sketcher.Constraint("Horizontal", 22),
    Sketcher.Constraint("Vertical", 24),
    Sketcher.Constraint("Vertical", 26),
    Sketcher.Constraint("Vertical", 28),
    Sketcher.Constraint("Vertical", 30),
    Sketcher.Constraint("Vertical", 32),
    Sketcher.Constraint("Vertical", 34),
    Sketcher.Constraint("Vertical", 36),
    Sketcher.Constraint("Vertical", 38),
    Sketcher.Constraint("Vertical", 40),
    Sketcher.Constraint("Vertical", 42),
    Sketcher.Constraint("Vertical", 44),
    Sketcher.Constraint("Vertical", 46),
    Sketcher.Constraint("Equal", 3, 5),
    Sketcher.Constraint("Equal", 7, 9),
    Sketcher.Constraint("Equal", 11, 13),
    Sketcher.Constraint("Equal", 15, 17),
    Sketcher.Constraint("Equal", 19, 21),
    Sketcher.Constraint("Equal", 23, 25),
    Sketcher.Constraint("Equal", 27, 29),
    Sketcher.Constraint("Equal", 31, 33),
    Sketcher.Constraint("Equal", 35, 37),
    Sketcher.Constraint("Equal", 39, 41),
    Sketcher.Constraint("Equal", 43, 45),
    Sketcher.Constraint("Symmetric", 3, 3, 17, 3, -1, 1),
    Sketcher.Constraint("Symmetric", 7, 3, 21, 3, -1, 1),
    Sketcher.Constraint("Symmetric", 9, 3, 25, 3, -1, 1),
    Sketcher.Constraint("Symmetric", 13, 3, 29, 3, -1, 1),
    Sketcher.Constraint("Symmetric", 37, 3, 41, 3, -1, 1),
    Sketcher.Constraint("Symmetric", 33, 3, 45, 3, -1, 1),
    Sketcher.Constraint("Symmetric", 3, 3, 5, 3, -2),
    Sketcher.Constraint("Symmetric", 15, 3, 25, 3, -2),
    Sketcher.Constraint("Symmetric", 35, 3, 37, 3, -2),
    Sketcher.Constraint("Horizontal", 13, 3, 27, 3),
    Sketcher.Constraint("Horizontal", 11, 3, 29, 3),
    Sketcher.Constraint("Horizontal", 9, 3, 31, 3),
    Sketcher.Constraint("Horizontal", 33, 3, 39, 3),
    Sketcher.Constraint("Horizontal", 43, 3, 45, 3),
    Sketcher.Constraint("Horizontal", 41, 3, 47, 3),
    Sketcher.Constraint("Vertical", 7, 3, 19, 3),
    Sketcher.Constraint("Vertical", 1, 3, 21, 3),
    Sketcher.Constraint("Vertical", 3, 3, 23, 3),
    Sketcher.Constraint("Equal", 22, 8),
    Sketcher.Constraint("Equal", 30, 32),
    Sketcher.Constraint("Radius", 1, 6.0),
    Sketcher.Constraint("DistanceX", 0, 2, 0, 1, 35.0),
    Sketcher.Constraint("DistanceX", 1, 3, -1, 1, 56.0),
    Sketcher.Constraint("DistanceY", 9, 3, -1, 1, 21.0),
    Sketcher.Constraint("DistanceY", 1, 3, -1, 1, 100.06),
    Sketcher.Constraint("DistanceX", -1, 1, 9, 3, 100.06),
    Sketcher.Constraint("DistanceY", 33, 3, -1, 1, 52.56),
    Sketcher.Constraint("DistanceX", 33, 3, -1, 1, 23.453333),
])
pocket5 = body.newObject("PartDesign::Pocket", "Pocket004")
pocket5.Profile = sketch6
pocket5.Length = 4.7625
pocket5.Reversed = True

sketch7 = body.newObject("Sketcher::SketchObject", "Sketch006")
sketch7.AttachmentSupport = (doc.getObject("XZ_Plane"), [""])
sketch7.MapMode = "FlatFace"
sketch7.AttachmentOffset = App.Placement(V(0, 0, -4.7625), App.Rotation())
sketch7.addGeometry([
    Part.Circle(V(0, -15, 0), V(0, 0, 1), 2.5),
    Part.Circle(V(15, 0, 0), V(0, 0, 1), 2.5),
    Part.Circle(V(0, 15, 0), V(0, 0, 1), 2.5),
    Part.Circle(V(-15, 0, 0), V(0, 0, 1), 2.5),
], False)
sketch7.addConstraint([
    Sketcher.Constraint("Equal", 0, 1),
    Sketcher.Constraint("Equal", 1, 2),
    Sketcher.Constraint("Equal", 2, 3),
    Sketcher.Constraint("Symmetric", 0, 3, 2, 3, -1, 1),
    Sketcher.Constraint("Symmetric", 1, 3, 3, 3, -1, 1),
    Sketcher.Constraint("PointOnObject", 0, 3, -2),
    Sketcher.Constraint("PointOnObject", 1, 3, -1),
    Sketcher.Constraint("Diameter", 0, 5.0),
    Sketcher.Constraint("DistanceY", 0, 3, -1, 1, 15.0),
    Sketcher.Constraint("DistanceX", -1, 1, 1, 3, 15.0),
])
pocket6 = body.newObject("PartDesign::Pocket", "Pocket005")
pocket6.Profile = sketch7
pocket6.Length = 4.7625
pocket6.Reversed = True

sketch8 = body.newObject("Sketcher::SketchObject", "Sketch007")
sketch8.AttachmentSupport = (doc.getObject("XZ_Plane"), [""])
sketch8.MapMode = "FlatFace"
sketch8.AttachmentOffset = App.Placement(V(0, 0, -4.7625), App.Rotation())
sketch8.addGeometry([
    Part.Circle(V(-134.5, -138.5, 0), V(0, 0, 1), 1.2),
    Part.Circle(V(-134.5, -111.5, 0), V(0, 0, 1), 1.2),
    Part.Circle(V(-67.5, -111.5, 0), V(0, 0, 1), 1.2),
    Part.Circle(V(-67.5, -138.5, 0), V(0, 0, 1), 1.2),
    Part.Circle(V(-82.3, -38.5, 0), V(0, 0, 1), 1.5),
    Part.Circle(V(-117.8, -38.5, 0), V(0, 0, 1), 1.5),
    Part.Circle(V(-110.6, 28, 0), V(0, 0, 1), 1.2),
    Part.Circle(V(-110.6, 49, 0), V(0, 0, 1), 1.2),
    Part.Circle(V(-89.6, 28, 0), V(0, 0, 1), 1.2),
    Part.Circle(V(-89.6, 49, 0), V(0, 0, 1), 1.2),
    Part.Circle(V(-61.2, 114.5, 0), V(0, 0, 1), 1.5),
    Part.Circle(V(12.6, 114.5, 0), V(0, 0, 1), 1.5),
    Part.Circle(V(80.8, -56.8, 0), V(0, 0, 1), 1.5),
    Part.Circle(V(80.8, 25.4, 0), V(0, 0, 1), 1.5),
], False)
sketch8.addConstraint([
    Sketcher.Constraint("Equal", 0, 1),
    Sketcher.Constraint("Equal", 1, 2),
    Sketcher.Constraint("Equal", 2, 3),
    Sketcher.Constraint("Equal", 4, 5),
    Sketcher.Constraint("Equal", 3, 6),
    Sketcher.Constraint("Equal", 6, 7),
    Sketcher.Constraint("Equal", 7, 8),
    Sketcher.Constraint("Equal", 8, 9),
    Sketcher.Constraint("Equal", 5, 10),
    Sketcher.Constraint("Equal", 10, 11),
    Sketcher.Constraint("Equal", 11, 12),
    Sketcher.Constraint("Equal", 12, 13),
    Sketcher.Constraint("Horizontal", 1, 3, 2, 3),
    Sketcher.Constraint("Horizontal", 0, 3, 3, 3),
    Sketcher.Constraint("Horizontal", 4, 3, 5, 3),
    Sketcher.Constraint("Horizontal", 6, 3, 8, 3),
    Sketcher.Constraint("Horizontal", 7, 3, 9, 3),
    Sketcher.Constraint("Horizontal", 10, 3, 11, 3),
    Sketcher.Constraint("Vertical", 0, 3, 1, 3),
    Sketcher.Constraint("Vertical", 2, 3, 3, 3),
    Sketcher.Constraint("Vertical", 6, 3, 7, 3),
    Sketcher.Constraint("Vertical", 8, 3, 9, 3),
    Sketcher.Constraint("Vertical", 12, 3, 13, 3),
    Sketcher.Constraint("Diameter", 4, 3.0),
    Sketcher.Constraint("Diameter", 0, 2.5),
    Sketcher.Constraint("DistanceY", -1, 1, 6, 3, 28.0),
    Sketcher.Constraint("DistanceY", -1, 1, 7, 3, 49.0),
    Sketcher.Constraint("DistanceY", 0, 3, 1, 3, 27.0),
    Sketcher.Constraint("DistanceX", 1, 3, 2, 3, 67.0),
    Sketcher.Constraint("DistanceY", 2, 3, 4, 3, 73.0),
    Sketcher.Constraint("DistanceX", 6, 3, 8, 3, 21.0),
    Sketcher.Constraint("DistanceY", 4, 3, 10, 3, 153.0),
    Sketcher.Constraint("DistanceX", 0, 3, -1, 1, 134.5),
    Sketcher.Constraint("DistanceY", 0, 3, -1, 1, 138.5),
    Sketcher.Constraint("DistanceX", 5, 3, 4, 3, 35.5),
    Sketcher.Constraint("DistanceX", 10, 3, 11, 3, 73.8),
    Sketcher.Constraint("DistanceX", 4, 3, -1, 1, 82.31),
    Sketcher.Constraint("DistanceX", 6, 3, -1, 1, 110.56),
    Sketcher.Constraint("DistanceX", 10, 3, -1, 1, 61.25),
    Sketcher.Constraint("DistanceX", -1, 1, 12, 3, 80.756),
    Sketcher.Constraint("DistanceY", 12, 3, -1, 1, 56.832205),
    Sketcher.Constraint("DistanceY", -1, 1, 13, 3, 25.414883),
])
pocket7 = body.newObject("PartDesign::Pocket", "Pocket006")
pocket7.Profile = sketch8
pocket7.Length = 4.7625
pocket7.Reversed = True

doc.recompute()
